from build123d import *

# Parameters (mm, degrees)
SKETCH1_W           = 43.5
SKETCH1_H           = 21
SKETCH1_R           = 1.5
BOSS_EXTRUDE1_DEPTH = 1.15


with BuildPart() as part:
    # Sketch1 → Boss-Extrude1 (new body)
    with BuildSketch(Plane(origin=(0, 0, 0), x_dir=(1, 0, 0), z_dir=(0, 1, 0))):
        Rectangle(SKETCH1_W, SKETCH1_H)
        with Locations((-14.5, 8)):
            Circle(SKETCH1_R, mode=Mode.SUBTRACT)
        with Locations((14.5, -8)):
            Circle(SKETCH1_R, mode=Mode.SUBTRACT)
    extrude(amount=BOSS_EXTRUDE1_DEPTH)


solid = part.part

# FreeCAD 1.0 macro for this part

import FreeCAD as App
import Part
import Sketcher
from FreeCAD import Vector
Q = App.Units.Quantity


def add_polygon(sketch, points):
    """Adds a closed chain of lines whose ends are joined by coincident constraints."""
    first, n = sketch.GeometryCount, len(points)
    for a, b in zip(points, points[1:] + points[:1]):
        sketch.addGeometry(Part.LineSegment(App.Vector(*a, 0), App.Vector(*b, 0)), False)
    for i in range(n):
        sketch.addConstraint(Sketcher.Constraint("Coincident", first + i, 2, first + (i + 1) % n, 1))

doc = App.newDocument("Part")
body = doc.addObject("PartDesign::Body", "Body")

sketch1 = body.newObject("Sketcher::SketchObject", "Sketch")
sketch1.AttachmentSupport = (doc.getObject("XZ_Plane"), [""])
sketch1.MapMode = "FlatFace"
add_polygon(sketch1, [(-21.8, -10.5), (-21.8, 10.5), (21.8, 10.5), (21.8, -10.5)])
sketch1.addGeometry(Part.Circle(Vector(14.5, 8, 0), Vector(0, 0, 1), 1.5), False)
sketch1.addGeometry(Part.Circle(Vector(-14.5, -8, 0), Vector(0, 0, 1), 1.5), False)
sketch1.addConstraint([
    Sketcher.Constraint("Vertical", 0),
    Sketcher.Constraint("Horizontal", 1),
    Sketcher.Constraint("Vertical", 2),
    Sketcher.Constraint("Horizontal", 3),
    Sketcher.Constraint("Equal", 4, 5),
    Sketcher.Constraint("Symmetric", 4, 3, 5, 3, -1, 1),
    Sketcher.Constraint("Symmetric", 0, 2, 2, 2, -1, 1),
    Sketcher.Constraint("Diameter", 4, Q("3 mm")),
    Sketcher.Constraint("DistanceY", 0, 1, 0, 2, Q("21 mm")),
    Sketcher.Constraint("DistanceX", 1, 1, 1, 2, Q("43.5 mm")),
    Sketcher.Constraint("DistanceY", -1, 1, 4, 3, Q("8 mm")),
    Sketcher.Constraint("DistanceX", 5, 3, 4, 3, Q("29 mm")),
])
pad1 = body.newObject("PartDesign::Pad", "Pad")
pad1.Profile = sketch1
pad1.Length = 1.15
pad1.Reversed = True

doc.recompute()
